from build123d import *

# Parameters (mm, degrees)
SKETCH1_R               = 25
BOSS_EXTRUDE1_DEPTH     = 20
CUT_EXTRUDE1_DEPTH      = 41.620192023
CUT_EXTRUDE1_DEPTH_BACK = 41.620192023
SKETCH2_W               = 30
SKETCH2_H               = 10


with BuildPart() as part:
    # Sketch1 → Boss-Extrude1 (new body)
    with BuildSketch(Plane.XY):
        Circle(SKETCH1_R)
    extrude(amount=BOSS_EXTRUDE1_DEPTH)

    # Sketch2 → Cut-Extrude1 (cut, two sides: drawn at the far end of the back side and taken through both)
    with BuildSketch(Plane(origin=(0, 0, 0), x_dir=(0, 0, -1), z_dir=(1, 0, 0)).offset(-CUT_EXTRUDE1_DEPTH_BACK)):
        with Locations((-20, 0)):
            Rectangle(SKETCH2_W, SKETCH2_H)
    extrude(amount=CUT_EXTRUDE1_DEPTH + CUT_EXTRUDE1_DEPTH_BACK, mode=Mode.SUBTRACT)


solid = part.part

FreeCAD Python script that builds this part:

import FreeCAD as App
import Part
import Sketcher
Q = App.Units.Quantity


def add_polygon(sketch, points):
    """Adds a closed chain of lines whose ends are joined by coincident constraints."""
    first, n = sketch.GeometryCount, len(points)
    for a, b in zip(points, points[1:] + points[:1]):
        sketch.addGeometry(Part.LineSegment(App.Vector(*a, 0), App.Vector(*b, 0)), False)
    for i in range(n):
        sketch.addConstraint(Sketcher.Constraint("Coincident", first + i, 2, first + (i + 1) % n, 1))

doc = App.newDocument("Part")
params = doc.addObject("Spreadsheet::Sheet", "Params")
for row, (alias, value) in enumerate([
    ("sketch1_diameter", "50 mm"),
    ("pad1_length", "20 mm"),
    ("sketch2_width", "10 mm"),
    ("sketch2_height", "30 mm"),
], start=1):
    params.set(f"A{row}", alias)
    params.set(f"B{row}", "=" + value)
    params.setAlias(f"B{row}", alias)

body = doc.addObject("PartDesign::Body", "Body")

sketch1 = body.newObject("Sketcher::SketchObject", "Sketch")
sketch1.AttachmentSupport = (doc.getObject("XY_Plane"), [""])
sketch1.MapMode = "FlatFace"
sketch1.addGeometry(Part.Circle(App.Vector(0, 0, 0), App.Vector(0, 0, 1), 25), False)
sketch1.addConstraint(Sketcher.Constraint("Coincident", 0, 3, -1, 1))
sketch1.addConstraint(Sketcher.Constraint("Diameter", 0, Q("50 mm")))
sketch1.setExpression("Constraints[1]", "Params.sketch1_diameter")
pad1 = body.newObject("PartDesign::Pad", "Pad")
pad1.Profile = sketch1
pad1.setExpression("Length", "Params.pad1_length")

sketch2 = body.newObject("Sketcher::SketchObject", "Sketch001")
sketch2.AttachmentSupport = (doc.getObject("YZ_Plane"), [""])
sketch2.MapMode = "FlatFace"
add_polygon(sketch2, [(5, 35), (-5, 35), (-5, 5), (5, 5)])
sketch2.addConstraint(Sketcher.Constraint("Horizontal", 0))
sketch2.addConstraint(Sketcher.Constraint("Vertical", 1))
sketch2.addConstraint(Sketcher.Constraint("Horizontal", 2))
sketch2.addConstraint(Sketcher.Constraint("Vertical", 3))
sketch2.addConstraint(Sketcher.Constraint("DistanceX", 0, 2, 0, 1, Q("10 mm")))
sketch2.addConstraint(Sketcher.Constraint("DistanceY", 1, 2, 1, 1, Q("30 mm")))
sketch2.addConstraint(Sketcher.Constraint("DistanceX", 0, 2, -1, 1, Q("5 mm")))
sketch2.addConstraint(Sketcher.Constraint("DistanceY", -1, 1, 0, 2, Q("35 mm")))
sketch2.setExpression("Constraints[8]", "Params.sketch2_width")
sketch2.setExpression("Constraints[9]", "Params.sketch2_height")
pocket1 = body.newObject("PartDesign::Pocket", "Pocket")
pocket1.Profile = sketch2
pocket1.Type = "ThroughAll"
pocket1.Midplane = True

doc.recompute()
